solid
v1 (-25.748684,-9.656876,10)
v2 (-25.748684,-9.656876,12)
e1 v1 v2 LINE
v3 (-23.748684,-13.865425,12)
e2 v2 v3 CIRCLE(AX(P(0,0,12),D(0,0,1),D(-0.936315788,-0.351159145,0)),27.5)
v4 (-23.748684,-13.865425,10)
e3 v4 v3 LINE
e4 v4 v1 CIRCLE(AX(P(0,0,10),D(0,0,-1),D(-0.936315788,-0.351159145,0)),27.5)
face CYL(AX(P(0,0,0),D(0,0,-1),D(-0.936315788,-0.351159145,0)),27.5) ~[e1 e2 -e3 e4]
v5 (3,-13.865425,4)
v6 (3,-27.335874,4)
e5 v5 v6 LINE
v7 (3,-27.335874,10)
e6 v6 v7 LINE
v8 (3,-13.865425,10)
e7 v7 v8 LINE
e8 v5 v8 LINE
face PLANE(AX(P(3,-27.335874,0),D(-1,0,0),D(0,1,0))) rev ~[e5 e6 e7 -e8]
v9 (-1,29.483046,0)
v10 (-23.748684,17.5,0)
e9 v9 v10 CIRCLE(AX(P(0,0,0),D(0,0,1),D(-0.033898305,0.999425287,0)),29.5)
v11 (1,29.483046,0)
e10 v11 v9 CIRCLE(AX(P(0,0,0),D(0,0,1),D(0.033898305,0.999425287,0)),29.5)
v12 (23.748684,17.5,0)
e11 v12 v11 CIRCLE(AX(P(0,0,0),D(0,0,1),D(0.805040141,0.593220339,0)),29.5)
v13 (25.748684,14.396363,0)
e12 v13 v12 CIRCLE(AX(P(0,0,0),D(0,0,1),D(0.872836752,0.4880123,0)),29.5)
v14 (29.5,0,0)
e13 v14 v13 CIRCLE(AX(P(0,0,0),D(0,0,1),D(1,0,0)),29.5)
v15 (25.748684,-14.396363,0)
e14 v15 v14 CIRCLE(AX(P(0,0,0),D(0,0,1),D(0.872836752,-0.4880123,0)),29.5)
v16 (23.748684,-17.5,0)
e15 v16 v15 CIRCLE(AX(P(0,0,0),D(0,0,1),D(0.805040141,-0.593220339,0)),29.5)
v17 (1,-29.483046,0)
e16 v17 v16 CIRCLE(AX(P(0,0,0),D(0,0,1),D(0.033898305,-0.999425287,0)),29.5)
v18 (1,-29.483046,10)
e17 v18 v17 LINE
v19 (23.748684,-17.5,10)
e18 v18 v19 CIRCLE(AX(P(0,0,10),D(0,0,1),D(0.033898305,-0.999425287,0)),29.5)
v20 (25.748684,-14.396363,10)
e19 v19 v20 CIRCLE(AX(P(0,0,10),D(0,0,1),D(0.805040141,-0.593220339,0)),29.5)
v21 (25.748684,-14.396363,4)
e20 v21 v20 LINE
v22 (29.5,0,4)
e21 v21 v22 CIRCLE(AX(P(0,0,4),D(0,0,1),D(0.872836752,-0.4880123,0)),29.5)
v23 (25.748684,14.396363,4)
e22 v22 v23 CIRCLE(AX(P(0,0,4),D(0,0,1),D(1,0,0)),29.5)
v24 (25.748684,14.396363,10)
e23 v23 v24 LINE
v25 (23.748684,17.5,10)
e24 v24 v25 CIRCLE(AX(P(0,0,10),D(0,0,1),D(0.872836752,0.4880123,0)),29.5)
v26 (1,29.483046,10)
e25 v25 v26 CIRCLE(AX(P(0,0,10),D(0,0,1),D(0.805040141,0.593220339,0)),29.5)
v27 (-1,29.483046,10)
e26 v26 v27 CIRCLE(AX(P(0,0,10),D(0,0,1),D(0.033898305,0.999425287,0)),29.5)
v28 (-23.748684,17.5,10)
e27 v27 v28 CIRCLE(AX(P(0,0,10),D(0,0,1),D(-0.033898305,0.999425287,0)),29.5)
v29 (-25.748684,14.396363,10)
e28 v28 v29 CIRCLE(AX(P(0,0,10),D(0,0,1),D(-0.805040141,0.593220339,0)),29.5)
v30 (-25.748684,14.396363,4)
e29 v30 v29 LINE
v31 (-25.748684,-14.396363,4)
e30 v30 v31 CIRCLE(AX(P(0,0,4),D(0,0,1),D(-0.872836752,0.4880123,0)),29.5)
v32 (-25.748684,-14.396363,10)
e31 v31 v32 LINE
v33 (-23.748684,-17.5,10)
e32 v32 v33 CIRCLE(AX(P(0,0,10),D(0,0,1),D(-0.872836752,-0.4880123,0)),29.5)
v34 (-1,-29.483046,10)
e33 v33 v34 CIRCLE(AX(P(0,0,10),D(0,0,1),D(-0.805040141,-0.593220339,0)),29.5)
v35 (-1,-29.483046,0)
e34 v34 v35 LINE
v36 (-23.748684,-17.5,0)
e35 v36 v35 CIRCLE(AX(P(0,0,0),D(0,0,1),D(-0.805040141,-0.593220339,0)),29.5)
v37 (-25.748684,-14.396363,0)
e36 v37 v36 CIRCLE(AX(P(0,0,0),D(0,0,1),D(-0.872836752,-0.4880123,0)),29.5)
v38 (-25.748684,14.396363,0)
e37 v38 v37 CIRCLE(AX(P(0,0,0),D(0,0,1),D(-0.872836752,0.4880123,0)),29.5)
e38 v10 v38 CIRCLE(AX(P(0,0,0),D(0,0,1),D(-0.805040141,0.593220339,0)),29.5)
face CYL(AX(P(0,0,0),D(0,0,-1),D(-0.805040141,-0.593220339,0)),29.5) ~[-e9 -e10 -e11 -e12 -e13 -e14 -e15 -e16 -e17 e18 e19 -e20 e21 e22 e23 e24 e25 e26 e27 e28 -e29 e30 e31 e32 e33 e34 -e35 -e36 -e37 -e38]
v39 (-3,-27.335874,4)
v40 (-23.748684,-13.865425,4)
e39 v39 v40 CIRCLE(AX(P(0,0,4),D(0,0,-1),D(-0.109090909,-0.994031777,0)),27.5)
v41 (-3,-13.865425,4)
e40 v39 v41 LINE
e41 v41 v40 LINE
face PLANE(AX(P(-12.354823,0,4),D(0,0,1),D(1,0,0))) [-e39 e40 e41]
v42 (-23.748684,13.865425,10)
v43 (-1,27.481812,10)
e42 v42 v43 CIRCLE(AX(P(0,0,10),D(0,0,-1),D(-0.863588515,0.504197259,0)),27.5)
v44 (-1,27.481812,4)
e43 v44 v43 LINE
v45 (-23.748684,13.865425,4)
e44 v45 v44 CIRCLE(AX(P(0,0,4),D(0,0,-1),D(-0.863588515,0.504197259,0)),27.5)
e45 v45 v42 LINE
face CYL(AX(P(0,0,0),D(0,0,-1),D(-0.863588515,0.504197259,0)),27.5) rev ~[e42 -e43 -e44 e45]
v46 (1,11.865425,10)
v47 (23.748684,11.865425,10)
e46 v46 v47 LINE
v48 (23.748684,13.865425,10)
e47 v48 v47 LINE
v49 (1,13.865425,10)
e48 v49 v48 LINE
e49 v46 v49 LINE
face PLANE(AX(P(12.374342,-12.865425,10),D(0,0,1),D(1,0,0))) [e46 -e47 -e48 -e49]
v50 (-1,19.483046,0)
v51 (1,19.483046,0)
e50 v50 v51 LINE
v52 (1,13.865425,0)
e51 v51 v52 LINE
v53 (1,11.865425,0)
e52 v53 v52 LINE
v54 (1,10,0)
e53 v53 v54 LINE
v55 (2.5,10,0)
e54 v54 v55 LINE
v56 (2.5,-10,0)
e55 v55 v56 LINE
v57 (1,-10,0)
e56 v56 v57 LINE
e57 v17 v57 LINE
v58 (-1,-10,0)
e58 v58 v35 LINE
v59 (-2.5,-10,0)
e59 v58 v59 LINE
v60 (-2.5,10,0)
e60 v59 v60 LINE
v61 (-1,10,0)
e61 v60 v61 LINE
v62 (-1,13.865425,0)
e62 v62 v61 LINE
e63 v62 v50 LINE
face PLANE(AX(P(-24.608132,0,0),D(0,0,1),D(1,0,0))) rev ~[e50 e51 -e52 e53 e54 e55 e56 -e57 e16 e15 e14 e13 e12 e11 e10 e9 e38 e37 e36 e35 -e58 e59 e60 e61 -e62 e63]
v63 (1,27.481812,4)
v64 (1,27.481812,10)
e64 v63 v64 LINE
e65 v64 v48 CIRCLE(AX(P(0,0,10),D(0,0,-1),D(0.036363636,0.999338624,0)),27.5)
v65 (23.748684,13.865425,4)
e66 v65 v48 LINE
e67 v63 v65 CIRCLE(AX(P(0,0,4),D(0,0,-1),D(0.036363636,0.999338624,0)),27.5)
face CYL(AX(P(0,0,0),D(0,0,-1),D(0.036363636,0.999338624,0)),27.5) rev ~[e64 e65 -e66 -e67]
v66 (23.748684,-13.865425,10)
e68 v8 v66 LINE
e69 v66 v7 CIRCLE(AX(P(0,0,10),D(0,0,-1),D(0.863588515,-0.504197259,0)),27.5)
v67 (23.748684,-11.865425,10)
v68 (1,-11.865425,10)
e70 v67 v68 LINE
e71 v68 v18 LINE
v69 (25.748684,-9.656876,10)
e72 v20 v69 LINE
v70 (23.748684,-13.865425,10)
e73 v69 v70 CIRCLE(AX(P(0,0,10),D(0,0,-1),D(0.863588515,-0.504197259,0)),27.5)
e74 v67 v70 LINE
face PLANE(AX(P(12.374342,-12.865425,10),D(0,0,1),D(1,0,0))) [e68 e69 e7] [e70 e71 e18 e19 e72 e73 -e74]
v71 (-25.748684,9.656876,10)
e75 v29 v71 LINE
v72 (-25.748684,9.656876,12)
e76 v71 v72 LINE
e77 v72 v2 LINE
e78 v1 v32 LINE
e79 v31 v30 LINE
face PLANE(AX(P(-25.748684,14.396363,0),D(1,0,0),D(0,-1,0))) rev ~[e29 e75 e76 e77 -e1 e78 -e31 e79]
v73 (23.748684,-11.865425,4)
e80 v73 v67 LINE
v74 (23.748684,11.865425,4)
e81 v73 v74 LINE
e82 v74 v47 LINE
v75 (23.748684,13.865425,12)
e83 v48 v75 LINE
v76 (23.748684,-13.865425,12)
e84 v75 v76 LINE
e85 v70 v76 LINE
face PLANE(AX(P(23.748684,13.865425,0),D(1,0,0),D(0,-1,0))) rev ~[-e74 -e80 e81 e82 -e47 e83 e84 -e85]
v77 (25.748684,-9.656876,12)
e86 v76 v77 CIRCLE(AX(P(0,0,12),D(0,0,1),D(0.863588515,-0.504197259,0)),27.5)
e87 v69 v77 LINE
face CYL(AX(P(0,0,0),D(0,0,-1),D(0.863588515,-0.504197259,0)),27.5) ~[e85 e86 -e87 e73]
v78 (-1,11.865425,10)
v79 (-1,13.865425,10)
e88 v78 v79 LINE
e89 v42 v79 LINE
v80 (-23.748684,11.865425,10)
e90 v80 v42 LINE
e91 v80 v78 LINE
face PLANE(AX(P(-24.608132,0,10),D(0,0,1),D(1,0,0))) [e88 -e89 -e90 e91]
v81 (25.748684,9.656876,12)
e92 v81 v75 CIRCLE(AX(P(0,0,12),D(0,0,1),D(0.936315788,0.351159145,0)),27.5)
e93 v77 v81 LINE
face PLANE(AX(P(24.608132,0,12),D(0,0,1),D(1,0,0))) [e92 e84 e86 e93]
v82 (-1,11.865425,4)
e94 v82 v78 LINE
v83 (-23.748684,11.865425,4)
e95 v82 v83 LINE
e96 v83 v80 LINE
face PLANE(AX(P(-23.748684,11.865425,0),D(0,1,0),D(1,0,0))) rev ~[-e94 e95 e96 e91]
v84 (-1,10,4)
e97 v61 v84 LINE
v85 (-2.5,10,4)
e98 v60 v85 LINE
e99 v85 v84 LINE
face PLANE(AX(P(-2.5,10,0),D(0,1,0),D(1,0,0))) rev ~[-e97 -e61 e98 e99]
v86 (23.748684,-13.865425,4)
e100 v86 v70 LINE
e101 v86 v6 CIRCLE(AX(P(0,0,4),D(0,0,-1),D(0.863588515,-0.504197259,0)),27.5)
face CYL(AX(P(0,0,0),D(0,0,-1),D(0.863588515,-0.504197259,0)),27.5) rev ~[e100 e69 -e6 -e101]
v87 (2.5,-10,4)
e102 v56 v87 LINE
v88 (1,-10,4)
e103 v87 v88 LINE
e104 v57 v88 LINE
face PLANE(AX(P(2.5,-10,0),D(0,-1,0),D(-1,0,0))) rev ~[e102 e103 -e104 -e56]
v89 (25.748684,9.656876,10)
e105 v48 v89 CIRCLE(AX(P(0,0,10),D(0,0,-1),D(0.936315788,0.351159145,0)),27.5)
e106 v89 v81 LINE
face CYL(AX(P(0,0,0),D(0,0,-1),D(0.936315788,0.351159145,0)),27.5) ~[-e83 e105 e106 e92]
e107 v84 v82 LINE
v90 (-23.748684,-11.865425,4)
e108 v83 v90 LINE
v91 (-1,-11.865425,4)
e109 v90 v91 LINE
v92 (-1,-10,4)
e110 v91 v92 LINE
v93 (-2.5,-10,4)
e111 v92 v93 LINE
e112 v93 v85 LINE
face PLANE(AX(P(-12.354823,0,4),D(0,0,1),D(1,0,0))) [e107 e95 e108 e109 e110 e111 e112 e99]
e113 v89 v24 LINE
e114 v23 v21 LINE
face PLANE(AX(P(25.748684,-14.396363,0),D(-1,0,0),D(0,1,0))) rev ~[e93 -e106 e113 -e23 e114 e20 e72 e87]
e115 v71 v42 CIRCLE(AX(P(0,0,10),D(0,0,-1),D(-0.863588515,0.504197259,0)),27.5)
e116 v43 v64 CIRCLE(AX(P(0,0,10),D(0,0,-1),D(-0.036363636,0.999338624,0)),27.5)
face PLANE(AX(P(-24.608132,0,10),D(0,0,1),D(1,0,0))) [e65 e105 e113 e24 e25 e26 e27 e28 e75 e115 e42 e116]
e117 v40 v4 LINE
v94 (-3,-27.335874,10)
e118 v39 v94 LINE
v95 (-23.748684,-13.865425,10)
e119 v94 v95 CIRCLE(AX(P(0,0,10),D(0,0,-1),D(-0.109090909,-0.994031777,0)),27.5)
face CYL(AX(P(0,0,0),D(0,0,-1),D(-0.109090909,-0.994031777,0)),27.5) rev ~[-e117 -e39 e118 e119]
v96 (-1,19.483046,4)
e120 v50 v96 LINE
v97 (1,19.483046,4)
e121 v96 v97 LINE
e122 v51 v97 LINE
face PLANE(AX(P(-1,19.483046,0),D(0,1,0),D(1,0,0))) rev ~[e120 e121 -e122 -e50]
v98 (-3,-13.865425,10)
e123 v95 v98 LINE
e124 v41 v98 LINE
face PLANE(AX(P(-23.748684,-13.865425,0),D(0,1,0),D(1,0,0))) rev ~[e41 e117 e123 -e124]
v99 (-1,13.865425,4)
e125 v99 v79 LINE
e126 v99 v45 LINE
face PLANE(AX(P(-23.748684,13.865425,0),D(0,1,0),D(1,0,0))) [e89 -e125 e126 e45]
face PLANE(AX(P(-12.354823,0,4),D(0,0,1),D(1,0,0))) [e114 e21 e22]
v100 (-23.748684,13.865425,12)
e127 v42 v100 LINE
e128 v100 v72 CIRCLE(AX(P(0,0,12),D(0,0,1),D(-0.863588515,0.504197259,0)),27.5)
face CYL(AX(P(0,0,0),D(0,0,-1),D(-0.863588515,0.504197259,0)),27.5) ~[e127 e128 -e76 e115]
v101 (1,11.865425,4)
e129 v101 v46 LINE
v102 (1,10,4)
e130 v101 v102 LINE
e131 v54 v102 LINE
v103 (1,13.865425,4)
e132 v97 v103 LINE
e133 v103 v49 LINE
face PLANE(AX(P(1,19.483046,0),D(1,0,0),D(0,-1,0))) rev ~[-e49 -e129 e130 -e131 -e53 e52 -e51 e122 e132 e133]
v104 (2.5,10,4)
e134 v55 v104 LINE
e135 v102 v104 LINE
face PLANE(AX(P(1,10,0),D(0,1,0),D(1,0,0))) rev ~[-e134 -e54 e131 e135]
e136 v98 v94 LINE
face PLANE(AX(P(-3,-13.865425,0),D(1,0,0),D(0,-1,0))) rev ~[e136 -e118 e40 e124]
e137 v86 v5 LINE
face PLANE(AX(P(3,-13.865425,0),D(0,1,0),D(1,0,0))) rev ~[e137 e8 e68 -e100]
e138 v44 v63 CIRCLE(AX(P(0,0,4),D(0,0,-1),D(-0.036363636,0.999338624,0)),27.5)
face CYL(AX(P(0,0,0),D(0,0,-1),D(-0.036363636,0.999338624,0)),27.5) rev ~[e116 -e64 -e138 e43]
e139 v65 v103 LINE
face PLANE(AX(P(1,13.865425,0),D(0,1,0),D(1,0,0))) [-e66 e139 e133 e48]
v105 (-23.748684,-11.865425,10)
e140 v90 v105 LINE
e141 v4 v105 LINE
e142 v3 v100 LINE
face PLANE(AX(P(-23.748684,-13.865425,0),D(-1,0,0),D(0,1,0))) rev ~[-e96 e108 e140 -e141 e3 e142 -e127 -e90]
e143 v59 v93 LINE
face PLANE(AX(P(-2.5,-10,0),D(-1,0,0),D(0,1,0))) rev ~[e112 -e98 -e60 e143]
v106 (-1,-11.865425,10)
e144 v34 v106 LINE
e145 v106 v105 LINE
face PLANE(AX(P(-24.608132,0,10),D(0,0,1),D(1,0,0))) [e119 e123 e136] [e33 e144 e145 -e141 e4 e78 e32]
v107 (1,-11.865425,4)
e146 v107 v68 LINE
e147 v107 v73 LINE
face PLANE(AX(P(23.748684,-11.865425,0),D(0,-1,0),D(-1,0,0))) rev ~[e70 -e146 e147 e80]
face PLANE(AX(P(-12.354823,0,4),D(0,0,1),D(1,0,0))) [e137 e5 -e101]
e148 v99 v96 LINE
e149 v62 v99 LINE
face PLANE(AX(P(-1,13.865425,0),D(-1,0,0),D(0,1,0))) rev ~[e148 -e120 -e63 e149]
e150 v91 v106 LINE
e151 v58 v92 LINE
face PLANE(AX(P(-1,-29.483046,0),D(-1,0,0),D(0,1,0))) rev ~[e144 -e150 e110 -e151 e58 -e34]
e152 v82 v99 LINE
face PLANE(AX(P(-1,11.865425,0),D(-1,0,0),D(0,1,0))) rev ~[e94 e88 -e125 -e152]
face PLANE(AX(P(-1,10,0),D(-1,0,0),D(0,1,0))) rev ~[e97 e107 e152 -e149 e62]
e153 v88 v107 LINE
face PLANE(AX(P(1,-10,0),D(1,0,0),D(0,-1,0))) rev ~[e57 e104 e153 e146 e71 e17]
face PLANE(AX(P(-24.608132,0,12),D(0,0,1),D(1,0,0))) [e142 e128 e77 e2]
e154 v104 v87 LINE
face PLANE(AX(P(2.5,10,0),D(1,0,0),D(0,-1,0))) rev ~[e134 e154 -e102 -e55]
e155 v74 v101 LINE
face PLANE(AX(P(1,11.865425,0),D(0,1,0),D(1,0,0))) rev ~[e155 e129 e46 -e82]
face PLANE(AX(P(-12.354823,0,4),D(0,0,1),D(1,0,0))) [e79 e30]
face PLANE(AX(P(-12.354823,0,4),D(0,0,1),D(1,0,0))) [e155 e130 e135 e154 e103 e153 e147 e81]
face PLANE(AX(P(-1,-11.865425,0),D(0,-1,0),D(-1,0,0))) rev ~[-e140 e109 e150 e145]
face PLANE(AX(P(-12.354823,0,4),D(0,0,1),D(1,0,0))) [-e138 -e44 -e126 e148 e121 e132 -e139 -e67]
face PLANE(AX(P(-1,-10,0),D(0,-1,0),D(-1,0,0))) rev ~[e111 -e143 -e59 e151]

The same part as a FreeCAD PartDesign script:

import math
import FreeCAD as App
import Part
import Sketcher

V = App.Vector
Q = App.Units.Quantity

doc = App.newDocument("Part")
body = doc.addObject("PartDesign::Body", "Body")

# Sketch on XY plane
sketch1 = doc.addObject("Sketcher::SketchObject", "Sketch")
body.addObject(sketch1)
sketch1.AttachmentSupport = (doc.XY_Plane, [""])
sketch1.MapMode = "FlatFace"
sketch1.addGeometry([
    Part.LineSegment(V(-1, 10, 0), V(-1, 13.865425, 0)),  # 0
    Part.LineSegment(V(-1, 13.865425, 0), V(-1, 19.483046, 0)),  # 1
    Part.LineSegment(V(-1, 19.483046, 0), V(1, 19.483046, 0)),  # 2
    Part.LineSegment(V(1, 19.483046, 0), V(1, 13.865425, 0)),  # 3
    Part.LineSegment(V(1, 13.865425, 0), V(1, 11.865425, 0)),  # 4
    Part.LineSegment(V(1, 11.865425, 0), V(1, 10, 0)),  # 5
    Part.LineSegment(V(1, 10, 0), V(2.5, 10, 0)),  # 6
    Part.LineSegment(V(2.5, 10, 0), V(2.5, -10, 0)),  # 7
    Part.LineSegment(V(2.5, -10, 0), V(1, -10, 0)),  # 8
    Part.LineSegment(V(1, -10, 0), V(1, -29.483046, 0)),  # 9
    Part.ArcOfCircle(Part.Circle(V(0, 0, 0), V(0, 0, 1), 29.5), math.radians(-88.057398), math.radians(-36.385868)),  # 10
    Part.ArcOfCircle(Part.Circle(V(0, 0, 0), V(0, 0, 1), 29.5), math.radians(-36.385868), math.radians(-29.210019)),  # 11
    Part.ArcOfCircle(Part.Circle(V(0, 0, 0), V(0, 0, 1), 29.5), math.radians(-29.210019), math.radians(0)),  # 12
    Part.ArcOfCircle(Part.Circle(V(0, 0, 0), V(0, 0, 1), 29.5), math.radians(0), math.radians(29.210019)),  # 13
    Part.ArcOfCircle(Part.Circle(V(0, 0, 0), V(0, 0, 1), 29.5), math.radians(29.210019), math.radians(36.385868)),  # 14
    Part.ArcOfCircle(Part.Circle(V(0, 0, 0), V(0, 0, 1), 29.5), math.radians(36.385868), math.radians(88.057398)),  # 15
    Part.ArcOfCircle(Part.Circle(V(0, 0, 0), V(0, 0, 1), 29.5), math.radians(88.057398), math.radians(91.942602)),  # 16
    Part.ArcOfCircle(Part.Circle(V(0, 0, 0), V(0, 0, 1), 29.5), math.radians(91.942602), math.radians(143.614132)),  # 17
    Part.ArcOfCircle(Part.Circle(V(0, 0, 0), V(0, 0, 1), 29.5), math.radians(143.614132), math.radians(150.789981)),  # 18
    Part.ArcOfCircle(Part.Circle(V(0, 0, 0), V(0, 0, 1), 29.5), math.radians(150.789981), math.radians(209.210019)),  # 19
    Part.ArcOfCircle(Part.Circle(V(0, 0, 0), V(0, 0, 1), 29.5), math.radians(-150.789981), math.radians(-143.614132)),  # 20
    Part.ArcOfCircle(Part.Circle(V(0, 0, 0), V(0, 0, 1), 29.5), math.radians(-143.614132), math.radians(-91.942602)),  # 21
    Part.LineSegment(V(-1, -29.483046, 0), V(-1, -10, 0)),  # 22
    Part.LineSegment(V(-1, -10, 0), V(-2.5, -10, 0)),  # 23
    Part.LineSegment(V(-2.5, -10, 0), V(-2.5, 10, 0)),  # 24
    Part.LineSegment(V(-2.5, 10, 0), V(-1, 10, 0)),  # 25
], False)
sketch1.addConstraint([
    Sketcher.Constraint("Coincident", 0, 2, 1, 1),
    Sketcher.Constraint("Coincident", 1, 2, 2, 1),
    Sketcher.Constraint("Coincident", 2, 2, 3, 1),
    Sketcher.Constraint("Coincident", 3, 2, 4, 1),
    Sketcher.Constraint("Coincident", 4, 2, 5, 1),
    Sketcher.Constraint("Coincident", 5, 2, 6, 1),
    Sketcher.Constraint("Coincident", 6, 2, 7, 1),
    Sketcher.Constraint("Coincident", 7, 2, 8, 1),
    Sketcher.Constraint("Coincident", 8, 2, 9, 1),
    Sketcher.Constraint("Coincident", 9, 2, 10, 1),
    Sketcher.Constraint("Tangent", 10, 2, 11, 1),
    Sketcher.Constraint("Tangent", 11, 2, 12, 1),
    Sketcher.Constraint("Tangent", 12, 2, 13, 1),
    Sketcher.Constraint("Tangent", 13, 2, 14, 1),
    Sketcher.Constraint("Tangent", 14, 2, 15, 1),
    Sketcher.Constraint("Tangent", 15, 2, 16, 1),
    Sketcher.Constraint("Tangent", 16, 2, 17, 1),
    Sketcher.Constraint("Tangent", 17, 2, 18, 1),
    Sketcher.Constraint("Tangent", 18, 2, 19, 1),
    Sketcher.Constraint("Tangent", 19, 2, 20, 1),
    Sketcher.Constraint("Tangent", 20, 2, 21, 1),
    Sketcher.Constraint("Coincident", 21, 2, 22, 1),
    Sketcher.Constraint("Coincident", 22, 2, 23, 1),
    Sketcher.Constraint("Coincident", 23, 2, 24, 1),
    Sketcher.Constraint("Coincident", 24, 2, 25, 1),
    Sketcher.Constraint("Coincident", 25, 2, 0, 1),
    Sketcher.Constraint("Vertical", 0),
    Sketcher.Constraint("Vertical", 1),
    Sketcher.Constraint("Horizontal", 2),
    Sketcher.Constraint("Vertical", 3),
    Sketcher.Constraint("Vertical", 4),
    Sketcher.Constraint("Vertical", 5),
    Sketcher.Constraint("Horizontal", 6),
    Sketcher.Constraint("Vertical", 7),
    Sketcher.Constraint("Horizontal", 8),
    Sketcher.Constraint("Vertical", 9),
    Sketcher.Constraint("Vertical", 22),
    Sketcher.Constraint("Horizontal", 23),
    Sketcher.Constraint("Vertical", 24),
    Sketcher.Constraint("Horizontal", 25),
    Sketcher.Constraint("Coincident", 10, 3, -1, 1),
    Sketcher.Constraint("Coincident", 12, 3, -1, 1),
    Sketcher.Constraint("Coincident", 14, 3, -1, 1),
    Sketcher.Constraint("Coincident", 16, 3, -1, 1),
    Sketcher.Constraint("Coincident", 18, 3, -1, 1),
    Sketcher.Constraint("Coincident", 20, 3, -1, 1),
    Sketcher.Constraint("Equal", 20, 21),
    Sketcher.Constraint("Symmetric", 5, 2, 22, 2, -1, 1),
    Sketcher.Constraint("Symmetric", 7, 2, 24, 2, -1, 1),
    Sketcher.Constraint("Symmetric", 0, 2, 3, 2, -2),
    Sketcher.Constraint("Symmetric", 8, 2, 22, 2, -2),
    Sketcher.Constraint("PointOnObject", 12, 2, -1),
    Sketcher.Constraint("Horizontal", 15, 2, 16, 2),
    Sketcher.Constraint("Horizontal", 14, 2, 17, 2),
    Sketcher.Constraint("Horizontal", 13, 2, 18, 2),
    Sketcher.Constraint("Horizontal", 11, 2, 19, 2),
    Sketcher.Constraint("Horizontal", 10, 2, 20, 2),
    Sketcher.Constraint("Vertical", 11, 2, 13, 2),
    Sketcher.Constraint("Vertical", 10, 2, 14, 2),
    Sketcher.Constraint("Vertical", 9, 2, 15, 2),
    Sketcher.Constraint("Equal", 2, 4),
    Sketcher.Constraint("Radius", 10, Q("29.5 mm")),
    Sketcher.Constraint("DistanceX", 2, 1, 2, 2, Q("2 mm")),
    Sketcher.Constraint("DistanceY", 7, 2, 7, 1, Q("20 mm")),
    Sketcher.Constraint("DistanceX", 6, 1, 6, 2, Q("1.5 mm")),
    Sketcher.Constraint("DistanceX", 10, 2, 11, 2, Q("2 mm")),
    Sketcher.Constraint("DistanceY", 2, 2, 15, 2, Q("10 mm")),
    Sketcher.Constraint("DistanceY", 10, 2, -1, 1, Q("17.5 mm")),
    Sketcher.Constraint("DistanceY", 1, 1, 1, 2, Q("5.617621 mm")),
])
pad1 = doc.addObject("PartDesign::Pad", "Pad")
body.addObject(pad1)
pad1.Profile = sketch1
pad1.Length = 4

# Sketch on XY plane
sketch2 = doc.addObject("Sketcher::SketchObject", "Sketch001")
body.addObject(sketch2)
sketch2.AttachmentSupport = (doc.XY_Plane, [""])
sketch2.MapMode = "FlatFace"
sketch2.addGeometry([
    Part.ArcOfCircle(Part.Circle(V(0, 0, 0), V(0, 0, 1), 27.5), math.radians(149.721921), math.radians(159.44177)),  # 0
    Part.LineSegment(V(-25.748684, 9.656876, 0), V(-25.748684, -9.656876, 0)),  # 1
    Part.ArcOfCircle(Part.Circle(V(0, 0, 0), V(0, 0, 1), 27.5), math.radians(-159.44177), math.radians(-149.721921)),  # 2
    Part.LineSegment(V(-23.748684, -13.865425, 0), V(-23.748684, 13.865425, 0)),  # 3
    Part.LineSegment(V(25.748684, -9.656876, 0), V(25.748684, 9.656876, 0)),  # 4
    Part.ArcOfCircle(Part.Circle(V(0, 0, 0), V(0, 0, 1), 27.5), math.radians(20.55823), math.radians(30.278079)),  # 5
    Part.LineSegment(V(23.748684, 13.865425, 0), V(23.748684, -13.865425, 0)),  # 6
    Part.ArcOfCircle(Part.Circle(V(0, 0, 0), V(0, 0, 1), 27.5), math.radians(-30.278079), math.radians(-20.55823)),  # 7
], False)
sketch2.addConstraint([
    Sketcher.Constraint("Coincident", 0, 2, 1, 1),
    Sketcher.Constraint("Coincident", 1, 2, 2, 1),
    Sketcher.Constraint("Coincident", 2, 2, 3, 1),
    Sketcher.Constraint("Coincident", 3, 2, 0, 1),
    Sketcher.Constraint("Coincident", 4, 2, 5, 1),
    Sketcher.Constraint("Coincident", 5, 2, 6, 1),
    Sketcher.Constraint("Coincident", 6, 2, 7, 1),
    Sketcher.Constraint("Coincident", 7, 2, 4, 1),
    Sketcher.Constraint("Vertical", 1),
    Sketcher.Constraint("Vertical", 3),
    Sketcher.Constraint("Vertical", 4),
    Sketcher.Constraint("Vertical", 6),
    Sketcher.Constraint("Coincident", 0, 3, -1, 1),
    Sketcher.Constraint("Coincident", 2, 3, -1, 1),
    Sketcher.Constraint("Coincident", 5, 3, -1, 1),
    Sketcher.Constraint("Coincident", 7, 3, -1, 1),
    Sketcher.Constraint("Equal", 0, 2),
    Sketcher.Constraint("Equal", 2, 5),
    Sketcher.Constraint("Equal", 5, 7),
    Sketcher.Constraint("Horizontal", 0, 2, 4, 2),
    Sketcher.Constraint("Horizontal", 3, 2, 5, 2),
    Sketcher.Constraint("Radius", 0, Q("27.5 mm")),
    Sketcher.Constraint("DistanceX", 1, 2, 2, 2, Q("2 mm")),
    Sketcher.Constraint("DistanceY", 3, 1, 3, 2, Q("27.730849 mm")),
])
pad2 = doc.addObject("PartDesign::Pad", "Pad001")
body.addObject(pad2)
pad2.Profile = sketch2
pad2.Length = 12

# Sketch on XY plane
sketch3 = doc.addObject("Sketcher::SketchObject", "Sketch002")
body.addObject(sketch3)
sketch3.AttachmentSupport = (doc.XY_Plane, [""])
sketch3.MapMode = "FlatFace"
sketch3.addGeometry([
    Part.ArcOfCircle(Part.Circle(V(0, 0, 0), V(0, 0, 1), 29.5), math.radians(-150.789981), math.radians(-143.614132)),  # 0
    Part.ArcOfCircle(Part.Circle(V(0, 0, 0), V(0, 0, 1), 29.5), math.radians(-143.614132), math.radians(-91.942602)),  # 1
    Part.LineSegment(V(-1, -29.483046, 0), V(-1, -11.865425, 0)),  # 2
    Part.LineSegment(V(-1, -11.865425, 0), V(-23.748684, -11.865425, 0)),  # 3
    Part.LineSegment(V(-23.748684, -11.865425, 0), V(-23.748684, 11.865425, 0)),  # 4
    Part.LineSegment(V(-23.748684, 11.865425, 0), V(-1, 11.865425, 0)),  # 5
    Part.LineSegment(V(-1, 11.865425, 0), V(-1, 13.865425, 0)),  # 6
    Part.LineSegment(V(-1, 13.865425, 0), V(-23.748684, 13.865425, 0)),  # 7
    Part.ArcOfCircle(Part.Circle(V(0, 0, 0), V(0, 0, 1), 27.5), math.radians(92.083942), math.radians(149.721921)),  # 8
    Part.LineSegment(V(-1, 27.481812, 0), V(-1, 29.483046, 0)),  # 9
    Part.ArcOfCircle(Part.Circle(V(0, 0, 0), V(0, 0, 1), 29.5), math.radians(91.942602), math.radians(143.614132)),  # 10
    Part.ArcOfCircle(Part.Circle(V(0, 0, 0), V(0, 0, 1), 29.5), math.radians(143.614132), math.radians(150.789981)),  # 11
    Part.LineSegment(V(-25.748684, 14.396363, 0), V(-25.748684, -14.396363, 0)),  # 12
    Part.LineSegment(V(-3, -13.865425, 0), V(-3, -27.335874, 0)),  # 13
    Part.ArcOfCircle(Part.Circle(V(0, 0, 0), V(0, 0, 1), 27.5), math.radians(-149.721921), math.radians(-96.262913)),  # 14
    Part.LineSegment(V(-23.748684, -13.865425, 0), V(-3, -13.865425, 0)),  # 15
    Part.ArcOfCircle(Part.Circle(V(0, 0, 0), V(0, 0, 1), 29.5), math.radians(-88.057398), math.radians(-36.385868)),  # 16
    Part.ArcOfCircle(Part.Circle(V(0, 0, 0), V(0, 0, 1), 29.5), math.radians(-36.385868), math.radians(-29.210019)),  # 17
    Part.LineSegment(V(25.748684, -14.396363, 0), V(25.748684, 14.396363, 0)),  # 18
    Part.ArcOfCircle(Part.Circle(V(0, 0, 0), V(0, 0, 1), 29.5), math.radians(29.210019), math.radians(36.385868)),  # 19
    Part.ArcOfCircle(Part.Circle(V(0, 0, 0), V(0, 0, 1), 29.5), math.radians(36.385868), math.radians(88.057398)),  # 20
    Part.LineSegment(V(1, 29.483046, 0), V(1, 27.481812, 0)),  # 21
    Part.ArcOfCircle(Part.Circle(V(0, 0, 0), V(0, 0, 1), 27.5), math.radians(30.278079), math.radians(87.916058)),  # 22
    Part.LineSegment(V(23.748684, 13.865425, 0), V(1, 13.865425, 0)),  # 23
    Part.LineSegment(V(1, 13.865425, 0), V(1, 11.865425, 0)),  # 24
    Part.LineSegment(V(1, 11.865425, 0), V(23.748684, 11.865425, 0)),  # 25
    Part.LineSegment(V(23.748684, 11.865425, 0), V(23.748684, -11.865425, 0)),  # 26
    Part.LineSegment(V(23.748684, -11.865425, 0), V(1, -11.865425, 0)),  # 27
    Part.LineSegment(V(1, -11.865425, 0), V(1, -29.483046, 0)),  # 28
    Part.LineSegment(V(3, -13.865425, 0), V(23.748684, -13.865425, 0)),  # 29
    Part.ArcOfCircle(Part.Circle(V(0, 0, 0), V(0, 0, 1), 27.5), math.radians(-83.737087), math.radians(-30.278079)),  # 30
    Part.LineSegment(V(3, -27.335874, 0), V(3, -13.865425, 0)),  # 31
], False)
sketch3.addConstraint([
    Sketcher.Constraint("Tangent", 0, 2, 1, 1),
    Sketcher.Constraint("Coincident", 1, 2, 2, 1),
    Sketcher.Constraint("Coincident", 2, 2, 3, 1),
    Sketcher.Constraint("Coincident", 3, 2, 4, 1),
    Sketcher.Constraint("Coincident", 4, 2, 5, 1),
    Sketcher.Constraint("Coincident", 5, 2, 6, 1),
    Sketcher.Constraint("Coincident", 6, 2, 7, 1),
    Sketcher.Constraint("Coincident", 7, 2, 8, 2),
    Sketcher.Constraint("Coincident", 8, 1, 9, 1),
    Sketcher.Constraint("Coincident", 9, 2, 10, 1),
    Sketcher.Constraint("Tangent", 10, 2, 11, 1),
    Sketcher.Constraint("Coincident", 11, 2, 12, 1),
    Sketcher.Constraint("Coincident", 12, 2, 0, 1),
    Sketcher.Constraint("Coincident", 13, 2, 14, 2),
    Sketcher.Constraint("Coincident", 14, 1, 15, 1),
    Sketcher.Constraint("Coincident", 15, 2, 13, 1),
    Sketcher.Constraint("Tangent", 16, 2, 17, 1),
    Sketcher.Constraint("Coincident", 17, 2, 18, 1),
    Sketcher.Constraint("Coincident", 18, 2, 19, 1),
    Sketcher.Constraint("Tangent", 19, 2, 20, 1),
    Sketcher.Constraint("Coincident", 20, 2, 21, 1),
    Sketcher.Constraint("Coincident", 21, 2, 22, 2),
    Sketcher.Constraint("Coincident", 22, 1, 23, 1),
    Sketcher.Constraint("Coincident", 23, 2, 24, 1),
    Sketcher.Constraint("Coincident", 24, 2, 25, 1),
    Sketcher.Constraint("Coincident", 25, 2, 26, 1),
    Sketcher.Constraint("Coincident", 26, 2, 27, 1),
    Sketcher.Constraint("Coincident", 27, 2, 28, 1),
    Sketcher.Constraint("Coincident", 28, 2, 16, 1),
    Sketcher.Constraint("Coincident", 29, 2, 30, 2),
    Sketcher.Constraint("Coincident", 30, 1, 31, 1),
    Sketcher.Constraint("Coincident", 31, 2, 29, 1),
    Sketcher.Constraint("Vertical", 2),
    Sketcher.Constraint("Horizontal", 3),
    Sketcher.Constraint("Vertical", 4),
    Sketcher.Constraint("Horizontal", 5),
    Sketcher.Constraint("Vertical", 6),
    Sketcher.Constraint("Horizontal", 7),
    Sketcher.Constraint("Vertical", 9),
    Sketcher.Constraint("Vertical", 12),
    Sketcher.Constraint("Vertical", 13),
    Sketcher.Constraint("Horizontal", 15),
    Sketcher.Constraint("Vertical", 18),
    Sketcher.Constraint("Vertical", 21),
    Sketcher.Constraint("Horizontal", 23),
    Sketcher.Constraint("Vertical", 24),
    Sketcher.Constraint("Horizontal", 25),
    Sketcher.Constraint("Vertical", 26),
    Sketcher.Constraint("Horizontal", 27),
    Sketcher.Constraint("Vertical", 28),
    Sketcher.Constraint("Horizontal", 29),
    Sketcher.Constraint("Vertical", 31),
    Sketcher.Constraint("Coincident", 0, 3, -1, 1),
    Sketcher.Constraint("Coincident", 8, 3, -1, 1),
    Sketcher.Constraint("Coincident", 10, 3, -1, 1),
    Sketcher.Constraint("Coincident", 14, 3, -1, 1),
    Sketcher.Constraint("Coincident", 16, 3, -1, 1),
    Sketcher.Constraint("Coincident", 19, 3, -1, 1),
    Sketcher.Constraint("Coincident", 22, 3, -1, 1),
    Sketcher.Constraint("Coincident", 30, 3, -1, 1),
    Sketcher.Constraint("Equal", 0, 1),
    Sketcher.Constraint("Equal", 1, 10),
    Sketcher.Constraint("Equal", 10, 11),
    Sketcher.Constraint("Equal", 8, 14),
    Sketcher.Constraint("Equal", 11, 16),
    Sketcher.Constraint("Equal", 16, 17),
    Sketcher.Constraint("Equal", 17, 19),
    Sketcher.Constraint("Equal", 19, 20),
    Sketcher.Constraint("Equal", 14, 22),
    Sketcher.Constraint("Equal", 22, 30),
    Sketcher.Constraint("Symmetric", 2, 2, 24, 2, -1, 1),
    Sketcher.Constraint("Symmetric", 4, 2, 26, 2, -1, 1),
    Sketcher.Constraint("Symmetric", 6, 2, 23, 2, -2),
    Sketcher.Constraint("Symmetric", 2, 2, 27, 2, -2),
    Sketcher.Constraint("Symmetric", 15, 2, 31, 2, -2),
    Sketcher.Constraint("Horizontal", 0, 2, 16, 2),
    Sketcher.Constraint("Horizontal", 12, 2, 17, 2),
    Sketcher.Constraint("Horizontal", 10, 2, 19, 2),
    Sketcher.Constraint("Horizontal", 9, 2, 20, 2),
    Sketcher.Constraint("Vertical", 0, 2, 3, 2),
    Sketcher.Constraint("Vertical", 4, 2, 7, 2),
    Sketcher.Constraint("Vertical", 6, 2, 8, 1),
    Sketcher.Constraint("Vertical", 7, 2, 10, 2),
    Sketcher.Constraint("Vertical", 10, 2, 14, 1),
    Sketcher.Constraint("Radius", 0, Q("29.5 mm")),
    Sketcher.Constraint("Radius", 8, Q("27.5 mm")),
    Sketcher.Constraint("DistanceY", 6, 1, 6, 2, Q("2 mm")),
    Sketcher.Constraint("DistanceX", 1, 2, -1, 1, Q("1 mm")),
    Sketcher.Constraint("DistanceX", 13, 2, -1, 1, Q("3 mm")),
    Sketcher.Constraint("DistanceX", 11, 2, 7, 2, Q("2 mm")),
    Sketcher.Constraint("DistanceY", 0, 2, -1, 1, Q("17.5 mm")),
])
pad3 = doc.addObject("PartDesign::Pad", "Pad002")
body.addObject(pad3)
pad3.Profile = sketch3
pad3.Length = 10

# Sketch on XY plane
sketch4 = doc.addObject("Sketcher::SketchObject", "Sketch003")
body.addObject(sketch4)
sketch4.AttachmentSupport = (doc.XY_Plane, [""])
sketch4.MapMode = "FlatFace"
sketch4.addGeometry([
    Part.LineSegment(V(1, 27.481812, 0), V(1, 29.483046, 0)),
    Part.ArcOfCircle(Part.Circle(V(0, 0, 0), V(0, 0, 1), 29.5), math.radians(88.057398), math.radians(91.942602)),
    Part.LineSegment(V(-1, 29.483046, 0), V(-1, 27.481812, 0)),
    Part.ArcOfCircle(Part.Circle(V(0, 0, 0), V(0, 0, 1), 27.5), math.radians(87.916058), math.radians(92.083942)),
], False)
sketch4.addConstraint([
    Sketcher.Constraint("Coincident", 0, 2, 1, 1),
    Sketcher.Constraint("Coincident", 1, 2, 2, 1),
    Sketcher.Constraint("Coincident", 2, 2, 3, 2),
    Sketcher.Constraint("Coincident", 3, 1, 0, 1),
    Sketcher.Constraint("Vertical", 0),
    Sketcher.Constraint("Vertical", 2),
    Sketcher.Constraint("Coincident", 1, 3, -1, 1),
    Sketcher.Constraint("Coincident", 3, 3, -1, 1),
    Sketcher.Constraint("Horizontal", 0, 2, 1, 2),
    Sketcher.Constraint("Radius", 1, Q("29.5 mm")),
    Sketcher.Constraint("Radius", 3, Q("27.5 mm")),
    Sketcher.Constraint("DistanceX", -1, 1, 0, 2, Q("1 mm")),
])
pad4 = doc.addObject("PartDesign::Pad", "Pad003")
body.addObject(pad4)
pad4.Profile = sketch4
pad4.Length = 10

doc.recompute()
